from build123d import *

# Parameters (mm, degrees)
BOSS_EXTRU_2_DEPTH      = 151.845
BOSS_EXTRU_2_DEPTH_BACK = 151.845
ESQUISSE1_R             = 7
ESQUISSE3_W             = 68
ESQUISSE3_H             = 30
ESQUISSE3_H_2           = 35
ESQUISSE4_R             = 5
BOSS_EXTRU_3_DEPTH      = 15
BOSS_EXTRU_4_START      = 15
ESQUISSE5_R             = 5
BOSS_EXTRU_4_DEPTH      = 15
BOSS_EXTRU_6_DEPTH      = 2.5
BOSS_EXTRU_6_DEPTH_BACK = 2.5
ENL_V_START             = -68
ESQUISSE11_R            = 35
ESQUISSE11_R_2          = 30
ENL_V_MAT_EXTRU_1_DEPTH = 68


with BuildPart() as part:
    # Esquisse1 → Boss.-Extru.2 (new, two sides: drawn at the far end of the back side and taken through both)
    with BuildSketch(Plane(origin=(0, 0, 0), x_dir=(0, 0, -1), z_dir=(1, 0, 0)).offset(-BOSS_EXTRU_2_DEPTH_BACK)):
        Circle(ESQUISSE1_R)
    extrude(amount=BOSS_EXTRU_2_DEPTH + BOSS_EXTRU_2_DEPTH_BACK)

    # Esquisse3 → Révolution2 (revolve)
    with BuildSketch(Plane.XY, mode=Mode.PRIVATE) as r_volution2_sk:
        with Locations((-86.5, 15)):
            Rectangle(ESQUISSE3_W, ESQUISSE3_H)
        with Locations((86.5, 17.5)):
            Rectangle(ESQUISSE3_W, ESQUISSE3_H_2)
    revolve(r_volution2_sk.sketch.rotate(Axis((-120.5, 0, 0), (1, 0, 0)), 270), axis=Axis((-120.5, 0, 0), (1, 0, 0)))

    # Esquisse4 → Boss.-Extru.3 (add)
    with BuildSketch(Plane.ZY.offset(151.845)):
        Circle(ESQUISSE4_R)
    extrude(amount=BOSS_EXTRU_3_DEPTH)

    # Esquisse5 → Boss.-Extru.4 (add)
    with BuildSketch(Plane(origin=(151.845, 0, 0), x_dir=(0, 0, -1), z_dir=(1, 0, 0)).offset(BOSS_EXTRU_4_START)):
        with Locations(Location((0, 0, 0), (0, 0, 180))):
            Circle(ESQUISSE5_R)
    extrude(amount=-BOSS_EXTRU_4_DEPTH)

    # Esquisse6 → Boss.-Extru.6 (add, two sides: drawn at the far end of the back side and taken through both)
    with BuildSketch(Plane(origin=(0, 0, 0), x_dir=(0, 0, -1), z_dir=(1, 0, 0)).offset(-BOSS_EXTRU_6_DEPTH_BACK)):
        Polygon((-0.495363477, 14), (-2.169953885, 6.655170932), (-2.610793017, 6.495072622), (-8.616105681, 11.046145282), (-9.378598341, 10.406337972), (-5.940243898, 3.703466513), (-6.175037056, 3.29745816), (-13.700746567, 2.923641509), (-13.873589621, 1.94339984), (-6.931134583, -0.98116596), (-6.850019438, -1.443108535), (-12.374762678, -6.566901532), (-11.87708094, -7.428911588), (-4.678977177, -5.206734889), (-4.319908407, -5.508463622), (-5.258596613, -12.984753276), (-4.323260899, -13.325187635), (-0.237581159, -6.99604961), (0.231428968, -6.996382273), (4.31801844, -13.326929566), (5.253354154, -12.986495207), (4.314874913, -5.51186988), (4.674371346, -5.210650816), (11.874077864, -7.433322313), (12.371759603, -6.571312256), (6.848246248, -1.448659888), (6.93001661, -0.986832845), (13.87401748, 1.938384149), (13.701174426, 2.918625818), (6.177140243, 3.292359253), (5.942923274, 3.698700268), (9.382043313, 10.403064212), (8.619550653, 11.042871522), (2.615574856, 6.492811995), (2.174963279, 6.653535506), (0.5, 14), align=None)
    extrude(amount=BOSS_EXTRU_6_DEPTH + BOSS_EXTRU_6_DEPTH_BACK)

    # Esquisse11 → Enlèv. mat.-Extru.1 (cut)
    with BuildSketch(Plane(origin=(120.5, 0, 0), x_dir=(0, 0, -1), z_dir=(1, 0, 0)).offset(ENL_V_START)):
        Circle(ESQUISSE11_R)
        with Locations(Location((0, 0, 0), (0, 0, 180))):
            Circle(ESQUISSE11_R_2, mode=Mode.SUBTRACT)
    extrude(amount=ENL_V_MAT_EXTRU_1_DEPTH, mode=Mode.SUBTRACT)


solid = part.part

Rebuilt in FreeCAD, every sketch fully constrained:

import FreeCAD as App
import Part
import Sketcher

V = App.Vector

doc = App.newDocument("Part")
body = doc.addObject("PartDesign::Body", "Body")

sketch1 = body.newObject("Sketcher::SketchObject", "Sketch")
sketch1.AttachmentSupport = (doc.getObject("YZ_Plane"), [""])
sketch1.MapMode = "FlatFace"
sketch1.addGeometry(Part.Circle(V(0, 0, 0), V(0, 0, 1), 7), False)
sketch1.addConstraint(Sketcher.Constraint("Coincident", 0, 3, -1, 1))
sketch1.addConstraint(Sketcher.Constraint("Diameter", 0, 14.0))
pad1 = body.newObject("PartDesign::Pad", "Pad")
pad1.Profile = sketch1
pad1.Type = "TwoLengths"
pad1.Length = 151.845
pad1.Length2 = 151.845

sketch2 = body.newObject("Sketcher::SketchObject", "Sketch001")
sketch2.AttachmentSupport = (doc.getObject("XY_Plane"), [""])
sketch2.MapMode = "FlatFace"
sketch2.addGeometry(Part.LineSegment(V(-120, 30, 0), V(-120, 0, 0)), False)
sketch2.addGeometry(Part.LineSegment(V(-120, 0, 0), V(-52, 0, 0)), False)
sketch2.addGeometry(Part.LineSegment(V(-52, 0, 0), V(-52, 30, 0)), False)
sketch2.addGeometry(Part.LineSegment(V(-52, 30, 0), V(-120, 30, 0)), False)
sketch2.addGeometry(Part.LineSegment(V(52, 35, 0), V(52, 0, 0)), False)
sketch2.addGeometry(Part.LineSegment(V(52, 0, 0), V(120, 0, 0)), False)
sketch2.addGeometry(Part.LineSegment(V(120, 0, 0), V(120, 35, 0)), False)
sketch2.addGeometry(Part.LineSegment(V(120, 35, 0), V(52, 35, 0)), False)
sketch2.addConstraint(Sketcher.Constraint("Coincident", 0, 2, 1, 1))
sketch2.addConstraint(Sketcher.Constraint("Coincident", 1, 2, 2, 1))
sketch2.addConstraint(Sketcher.Constraint("Coincident", 2, 2, 3, 1))
sketch2.addConstraint(Sketcher.Constraint("Coincident", 3, 2, 0, 1))
sketch2.addConstraint(Sketcher.Constraint("Coincident", 4, 2, 5, 1))
sketch2.addConstraint(Sketcher.Constraint("Coincident", 5, 2, 6, 1))
sketch2.addConstraint(Sketcher.Constraint("Coincident", 6, 2, 7, 1))
sketch2.addConstraint(Sketcher.Constraint("Coincident", 7, 2, 4, 1))
sketch2.addConstraint(Sketcher.Constraint("Vertical", 0))
sketch2.addConstraint(Sketcher.Constraint("Horizontal", 1))
sketch2.addConstraint(Sketcher.Constraint("Vertical", 2))
sketch2.addConstraint(Sketcher.Constraint("Horizontal", 3))
sketch2.addConstraint(Sketcher.Constraint("Vertical", 4))
sketch2.addConstraint(Sketcher.Constraint("Horizontal", 5))
sketch2.addConstraint(Sketcher.Constraint("Vertical", 6))
sketch2.addConstraint(Sketcher.Constraint("Horizontal", 7))
sketch2.addConstraint(Sketcher.Constraint("Symmetric", 1, 2, 4, 2, -1, 1))
sketch2.addConstraint(Sketcher.Constraint("Symmetric", 0, 2, 5, 2, -2))
sketch2.addConstraint(Sketcher.Constraint("DistanceX", 1, 1, 1, 2, 68.0))
sketch2.addConstraint(Sketcher.Constraint("DistanceY", 0, 2, 0, 1, 30.0))
sketch2.addConstraint(Sketcher.Constraint("DistanceY", 4, 2, 4, 1, 35.0))
sketch2.addConstraint(Sketcher.Constraint("DistanceX", 1, 2, 4, 2, 105.0))
revolution = body.newObject("PartDesign::Revolution", "Revolution")
revolution.Profile = sketch2
revolution.ReferenceAxis = (sketch2, ["H_Axis"])
revolution.Angle = 360

sketch3 = body.newObject("Sketcher::SketchObject", "Sketch002")
sketch3.AttachmentSupport = (doc.getObject("YZ_Plane"), [""])
sketch3.MapMode = "FlatFace"
sketch3.AttachmentOffset = App.Placement(V(0, 0, -151.845), App.Rotation())
sketch3.addGeometry(Part.Circle(V(0, 0, 0), V(0, 0, 1), 5), False)
sketch3.addConstraint(Sketcher.Constraint("Coincident", 0, 3, -1, 1))
sketch3.addConstraint(Sketcher.Constraint("Diameter", 0, 10.0))
pad2 = body.newObject("PartDesign::Pad", "Pad001")
pad2.Profile = sketch3
pad2.Length = 15
pad2.Reversed = True

sketch4 = body.newObject("Sketcher::SketchObject", "Sketch003")
sketch4.AttachmentSupport = (doc.getObject("YZ_Plane"), [""])
sketch4.MapMode = "FlatFace"
sketch4.AttachmentOffset = App.Placement(V(0, 0, 166.845), App.Rotation())
sketch4.addGeometry(Part.Circle(V(0, 0, 0), V(0, 0, 1), 5), False)
sketch4.addConstraint(Sketcher.Constraint("Coincident", 0, 3, -1, 1))
sketch4.addConstraint(Sketcher.Constraint("Diameter", 0, 10.0))
pad3 = body.newObject("PartDesign::Pad", "Pad002")
pad3.Profile = sketch4
pad3.Length = 15
pad3.Reversed = True

sketch5 = body.newObject("Sketcher::SketchObject", "Sketch004")
sketch5.AttachmentSupport = (doc.getObject("YZ_Plane"), [""])
sketch5.MapMode = "FlatFace"
sketch5.addGeometry(Part.LineSegment(V(14, 0.495363, 0), V(6.655171, 2.169954, 0)), False)
sketch5.addGeometry(Part.LineSegment(V(6.655171, 2.169954, 0), V(6.495073, 2.610793, 0)), False)
sketch5.addGeometry(Part.LineSegment(V(6.495073, 2.610793, 0), V(11.046145, 8.616106, 0)), False)
sketch5.addGeometry(Part.LineSegment(V(11.046145, 8.616106, 0), V(10.406338, 9.378598, 0)), False)
sketch5.addGeometry(Part.LineSegment(V(10.406338, 9.378598, 0), V(3.703467, 5.940244, 0)), False)
sketch5.addGeometry(Part.LineSegment(V(3.703467, 5.940244, 0), V(3.297458, 6.175037, 0)), False)
sketch5.addGeometry(Part.LineSegment(V(3.297458, 6.175037, 0), V(2.923642, 13.700747, 0)), False)
sketch5.addGeometry(Part.LineSegment(V(2.923642, 13.700747, 0), V(1.9434, 13.87359, 0)), False)
sketch5.addGeometry(Part.LineSegment(V(1.9434, 13.87359, 0), V(-0.981166, 6.931135, 0)), False)
sketch5.addGeometry(Part.LineSegment(V(-0.981166, 6.931135, 0), V(-1.443109, 6.850019, 0)), False)
sketch5.addGeometry(Part.LineSegment(V(-1.443109, 6.850019, 0), V(-6.566902, 12.374763, 0)), False)
sketch5.addGeometry(Part.LineSegment(V(-6.566902, 12.374763, 0), V(-7.428912, 11.877081, 0)), False)
sketch5.addGeometry(Part.LineSegment(V(-7.428912, 11.877081, 0), V(-5.206735, 4.678977, 0)), False)
sketch5.addGeometry(Part.LineSegment(V(-5.206735, 4.678977, 0), V(-5.508464, 4.319908, 0)), False)
sketch5.addGeometry(Part.LineSegment(V(-5.508464, 4.319908, 0), V(-12.984753, 5.258597, 0)), False)
sketch5.addGeometry(Part.LineSegment(V(-12.984753, 5.258597, 0), V(-13.325188, 4.323261, 0)), False)
sketch5.addGeometry(Part.LineSegment(V(-13.325188, 4.323261, 0), V(-6.99605, 0.237581, 0)), False)
sketch5.addGeometry(Part.LineSegment(V(-6.99605, 0.237581, 0), V(-6.996382, -0.231429, 0)), False)
sketch5.addGeometry(Part.LineSegment(V(-6.996382, -0.231429, 0), V(-13.32693, -4.318018, 0)), False)
sketch5.addGeometry(Part.LineSegment(V(-13.32693, -4.318018, 0), V(-12.986495, -5.253354, 0)), False)
sketch5.addGeometry(Part.LineSegment(V(-12.986495, -5.253354, 0), V(-5.51187, -4.314875, 0)), False)
sketch5.addGeometry(Part.LineSegment(V(-5.51187, -4.314875, 0), V(-5.210651, -4.674371, 0)), False)
sketch5.addGeometry(Part.LineSegment(V(-5.210651, -4.674371, 0), V(-7.433322, -11.874078, 0)), False)
sketch5.addGeometry(Part.LineSegment(V(-7.433322, -11.874078, 0), V(-6.571312, -12.37176, 0)), False)
sketch5.addGeometry(Part.LineSegment(V(-6.571312, -12.37176, 0), V(-1.44866, -6.848246, 0)), False)
sketch5.addGeometry(Part.LineSegment(V(-1.44866, -6.848246, 0), V(-0.986833, -6.930017, 0)), False)
sketch5.addGeometry(Part.LineSegment(V(-0.986833, -6.930017, 0), V(1.938384, -13.874017, 0)), False)
sketch5.addGeometry(Part.LineSegment(V(1.938384, -13.874017, 0), V(2.918626, -13.701174, 0)), False)
sketch5.addGeometry(Part.LineSegment(V(2.918626, -13.701174, 0), V(3.292359, -6.17714, 0)), False)
sketch5.addGeometry(Part.LineSegment(V(3.292359, -6.17714, 0), V(3.6987, -5.942923, 0)), False)
sketch5.addGeometry(Part.LineSegment(V(3.6987, -5.942923, 0), V(10.403064, -9.382043, 0)), False)
sketch5.addGeometry(Part.LineSegment(V(10.403064, -9.382043, 0), V(11.042872, -8.619551, 0)), False)
sketch5.addGeometry(Part.LineSegment(V(11.042872, -8.619551, 0), V(6.492812, -2.615575, 0)), False)
sketch5.addGeometry(Part.LineSegment(V(6.492812, -2.615575, 0), V(6.653536, -2.174963, 0)), False)
sketch5.addGeometry(Part.LineSegment(V(6.653536, -2.174963, 0), V(14, -0.5, 0)), False)
sketch5.addGeometry(Part.LineSegment(V(14, -0.5, 0), V(14, 0.495363, 0)), False)
sketch5.addConstraint(Sketcher.Constraint("Coincident", 0, 2, 1, 1))
sketch5.addConstraint(Sketcher.Constraint("Coincident", 1, 2, 2, 1))
sketch5.addConstraint(Sketcher.Constraint("Coincident", 2, 2, 3, 1))
sketch5.addConstraint(Sketcher.Constraint("Coincident", 3, 2, 4, 1))
sketch5.addConstraint(Sketcher.Constraint("Coincident", 4, 2, 5, 1))
sketch5.addConstraint(Sketcher.Constraint("Coincident", 5, 2, 6, 1))
sketch5.addConstraint(Sketcher.Constraint("Coincident", 6, 2, 7, 1))
sketch5.addConstraint(Sketcher.Constraint("Coincident", 7, 2, 8, 1))
sketch5.addConstraint(Sketcher.Constraint("Coincident", 8, 2, 9, 1))
sketch5.addConstraint(Sketcher.Constraint("Coincident", 9, 2, 10, 1))
sketch5.addConstraint(Sketcher.Constraint("Coincident", 10, 2, 11, 1))
sketch5.addConstraint(Sketcher.Constraint("Coincident", 11, 2, 12, 1))
sketch5.addConstraint(Sketcher.Constraint("Coincident", 12, 2, 13, 1))
sketch5.addConstraint(Sketcher.Constraint("Coincident", 13, 2, 14, 1))
sketch5.addConstraint(Sketcher.Constraint("Coincident", 14, 2, 15, 1))
sketch5.addConstraint(Sketcher.Constraint("Coincident", 15, 2, 16, 1))
sketch5.addConstraint(Sketcher.Constraint("Coincident", 16, 2, 17, 1))
sketch5.addConstraint(Sketcher.Constraint("Coincident", 17, 2, 18, 1))
sketch5.addConstraint(Sketcher.Constraint("Coincident", 18, 2, 19, 1))
sketch5.addConstraint(Sketcher.Constraint("Coincident", 19, 2, 20, 1))
sketch5.addConstraint(Sketcher.Constraint("Coincident", 20, 2, 21, 1))
sketch5.addConstraint(Sketcher.Constraint("Coincident", 21, 2, 22, 1))
sketch5.addConstraint(Sketcher.Constraint("Coincident", 22, 2, 23, 1))
sketch5.addConstraint(Sketcher.Constraint("Coincident", 23, 2, 24, 1))
sketch5.addConstraint(Sketcher.Constraint("Coincident", 24, 2, 25, 1))
sketch5.addConstraint(Sketcher.Constraint("Coincident", 25, 2, 26, 1))
sketch5.addConstraint(Sketcher.Constraint("Coincident", 26, 2, 27, 1))
sketch5.addConstraint(Sketcher.Constraint("Coincident", 27, 2, 28, 1))
sketch5.addConstraint(Sketcher.Constraint("Coincident", 28, 2, 29, 1))
sketch5.addConstraint(Sketcher.Constraint("Coincident", 29, 2, 30, 1))
sketch5.addConstraint(Sketcher.Constraint("Coincident", 30, 2, 31, 1))
sketch5.addConstraint(Sketcher.Constraint("Coincident", 31, 2, 32, 1))
sketch5.addConstraint(Sketcher.Constraint("Coincident", 32, 2, 33, 1))
sketch5.addConstraint(Sketcher.Constraint("Coincident", 33, 2, 34, 1))
sketch5.addConstraint(Sketcher.Constraint("Coincident", 34, 2, 35, 1))
sketch5.addConstraint(Sketcher.Constraint("Coincident", 35, 2, 0, 1))
sketch5.addConstraint(Sketcher.Constraint("Vertical", 35))
sketch5.addConstraint(Sketcher.Constraint("DistanceX", -1, 1, 34, 2, 14.0))
sketch5.addConstraint(Sketcher.Constraint("DistanceY", 34, 2, -1, 1, 0.5))
sketch5.addConstraint(Sketcher.Constraint("DistanceY", 26, 2, 25, 2, 6.944001))
sketch5.addConstraint(Sketcher.Constraint("DistanceY", -1, 1, 3, 2, 9.378598))
sketch5.addConstraint(Sketcher.Constraint("DistanceX", -1, 1, 7, 2, 1.9434))
sketch5.addConstraint(Sketcher.Constraint("DistanceX", 10, 2, -1, 1, 6.566902))
sketch5.addConstraint(Sketcher.Constraint("DistanceX", -1, 1, 29, 2, 3.6987))
sketch5.addConstraint(Sketcher.Constraint("DistanceX", 1, 2, 0, 2, 0.160098))
sketch5.addConstraint(Sketcher.Constraint("DistanceY", 15, 2, 10, 2, 8.051502))
sketch5.addConstraint(Sketcher.Constraint("DistanceY", 18, 2, 16, 2, 4.5556))
sketch5.addConstraint(Sketcher.Constraint("DistanceX", 16, 2, 21, 2, 1.785399))
sketch5.addConstraint(Sketcher.Constraint("Distance", 0, 7.53331))
sketch5.addConstraint(Sketcher.Constraint("Distance", 1, 0.46901))
sketch5.addConstraint(Sketcher.Constraint("Distance", 4, 7.53331))
sketch5.addConstraint(Sketcher.Constraint("Distance", 5, 0.46901))
sketch5.addConstraint(Sketcher.Constraint("Distance", 8, 7.53331))
sketch5.addConstraint(Sketcher.Constraint("Distance", 9, 0.46901))
sketch5.addConstraint(Sketcher.Constraint("Distance", 12, 7.53331))
sketch5.addConstraint(Sketcher.Constraint("Distance", 13, 0.46901))
sketch5.addConstraint(Sketcher.Constraint("Distance", 16, 7.53331))
sketch5.addConstraint(Sketcher.Constraint("Distance", 17, 0.46901))
sketch5.addConstraint(Sketcher.Constraint("Distance", 20, 7.53331))
sketch5.addConstraint(Sketcher.Constraint("Distance", 21, 0.46901))
sketch5.addConstraint(Sketcher.Constraint("Distance", 24, 7.53331))
sketch5.addConstraint(Sketcher.Constraint("Distance", 25, 0.46901))
sketch5.addConstraint(Sketcher.Constraint("Distance", 28, 7.53331))
sketch5.addConstraint(Sketcher.Constraint("Distance", 29, 0.46901))
sketch5.addConstraint(Sketcher.Constraint("Distance", 32, 7.53331))
sketch5.addConstraint(Sketcher.Constraint("Distance", 33, 0.46901))
sketch5.addConstraint(Sketcher.Constraint("DistanceY", 35, 1, 35, 2, 0.995363))
sketch5.addConstraint(Sketcher.Constraint("DistanceX", -1, 1, 0, 2, 6.655171))
sketch5.addConstraint(Sketcher.Constraint("DistanceX", -1, 1, 5, 2, 3.297458))
sketch5.addConstraint(Sketcher.Constraint("DistanceX", -1, 1, 6, 2, 2.923642))
sketch5.addConstraint(Sketcher.Constraint("DistanceY", -1, 1, 7, 2, 13.87359))
sketch5.addConstraint(Sketcher.Constraint("DistanceX", 9, 2, -1, 1, 1.443109))
sketch5.addConstraint(Sketcher.Constraint("DistanceY", -1, 1, 9, 2, 6.850019))
sketch5.addConstraint(Sketcher.Constraint("DistanceX", 11, 2, -1, 1, 7.428912))
sketch5.addConstraint(Sketcher.Constraint("DistanceY", -1, 1, 11, 2, 11.877081))
sketch5.addConstraint(Sketcher.Constraint("DistanceY", -1, 1, 13, 2, 4.319908))
sketch5.addConstraint(Sketcher.Constraint("DistanceY", -1, 1, 15, 2, 4.323261))
sketch5.addConstraint(Sketcher.Constraint("DistanceX", 16, 2, -1, 1, 6.99605))
sketch5.addConstraint(Sketcher.Constraint("DistanceY", -1, 1, 16, 2, 0.237581))
sketch5.addConstraint(Sketcher.Constraint("DistanceX", 18, 2, -1, 1, 13.32693))
sketch5.addConstraint(Sketcher.Constraint("DistanceX", 20, 2, -1, 1, 5.51187))
sketch5.addConstraint(Sketcher.Constraint("DistanceY", 21, 2, -1, 1, 4.674371))
sketch5.addConstraint(Sketcher.Constraint("DistanceY", 23, 2, -1, 1, 12.37176))
sketch5.addConstraint(Sketcher.Constraint("DistanceX", 24, 2, -1, 1, 1.44866))
sketch5.addConstraint(Sketcher.Constraint("DistanceX", -1, 1, 28, 2, 3.292359))
sketch5.addConstraint(Sketcher.Constraint("DistanceY", 28, 2, -1, 1, 6.17714))
sketch5.addConstraint(Sketcher.Constraint("DistanceX", -1, 1, 31, 2, 11.042872))
sketch5.addConstraint(Sketcher.Constraint("DistanceY", 31, 2, -1, 1, 8.619551))
sketch5.addConstraint(Sketcher.Constraint("DistanceX", -1, 1, 32, 2, 6.492812))
sketch5.addConstraint(Sketcher.Constraint("DistanceY", 0, 2, 2, 2, 6.446152))
sketch5.addConstraint(Sketcher.Constraint("DistanceY", 1, 2, 4, 2, 3.329451))
sketch5.addConstraint(Sketcher.Constraint("DistanceX", 4, 2, 2, 2, 7.342679))
sketch5.addConstraint(Sketcher.Constraint("DistanceX", 5, 2, 4, 2, 0.406008))
sketch5.addConstraint(Sketcher.Constraint("DistanceY", 5, 2, 6, 2, 7.52571))
sketch5.addConstraint(Sketcher.Constraint("DistanceX", 12, 2, 8, 2, 4.225569))
sketch5.addConstraint(Sketcher.Constraint("DistanceX", 14, 2, 13, 2, 7.47629))
sketch5.addConstraint(Sketcher.Constraint("DistanceY", 13, 2, 14, 2, 0.938688))
sketch5.addConstraint(Sketcher.Constraint("DistanceX", 17, 2, 13, 2, 1.487919))
sketch5.addConstraint(Sketcher.Constraint("DistanceX", 19, 2, 14, 2, 0.001742))
sketch5.addConstraint(Sketcher.Constraint("DistanceX", 22, 2, 21, 2, 2.222671))
sketch5.addConstraint(Sketcher.Constraint("DistanceY", 22, 2, 18, 2, 7.556059))
sketch5.addConstraint(Sketcher.Constraint("DistanceX", 22, 2, 23, 2, 0.86201))
sketch5.addConstraint(Sketcher.Constraint("DistanceY", 25, 2, 24, 2, 0.08177))
sketch5.addConstraint(Sketcher.Constraint("DistanceX", 26, 2, 27, 2, 0.980242))
sketch5.addConstraint(Sketcher.Constraint("DistanceX", 25, 2, 27, 2, 3.905459))
sketch5.addConstraint(Sketcher.Constraint("DistanceY", 30, 2, 29, 2, 3.43912))
sketch5.addConstraint(Sketcher.Constraint("DistanceX", 27, 2, 30, 2, 7.484438))
sketch5.addConstraint(Sketcher.Constraint("DistanceY", 32, 2, 33, 2, 0.440612))
pad4 = body.newObject("PartDesign::Pad", "Pad003")
pad4.Profile = sketch5
pad4.Type = "TwoLengths"
pad4.Length = 2.5
pad4.Length2 = 2.5

sketch6 = body.newObject("Sketcher::SketchObject", "Sketch005")
sketch6.AttachmentSupport = (doc.getObject("YZ_Plane"), [""])
sketch6.MapMode = "FlatFace"
sketch6.AttachmentOffset = App.Placement(V(0, 0, 52.5), App.Rotation())
sketch6.addGeometry(Part.Circle(V(0, 0, 0), V(0, 0, 1), 35), False)
sketch6.addGeometry(Part.Circle(V(0, 0, 0), V(0, 0, 1), 30), False)
sketch6.addConstraint(Sketcher.Constraint("Coincident", 0, 3, -1, 1))
sketch6.addConstraint(Sketcher.Constraint("Coincident", 1, 3, -1, 1))
sketch6.addConstraint(Sketcher.Constraint("Diameter", 0, 70.0))
sketch6.addConstraint(Sketcher.Constraint("Diameter", 1, 60.0))
pocket1 = body.newObject("PartDesign::Pocket", "Pocket")
pocket1.Profile = sketch6
pocket1.Length = 68
pocket1.Reversed = True

doc.recompute()
